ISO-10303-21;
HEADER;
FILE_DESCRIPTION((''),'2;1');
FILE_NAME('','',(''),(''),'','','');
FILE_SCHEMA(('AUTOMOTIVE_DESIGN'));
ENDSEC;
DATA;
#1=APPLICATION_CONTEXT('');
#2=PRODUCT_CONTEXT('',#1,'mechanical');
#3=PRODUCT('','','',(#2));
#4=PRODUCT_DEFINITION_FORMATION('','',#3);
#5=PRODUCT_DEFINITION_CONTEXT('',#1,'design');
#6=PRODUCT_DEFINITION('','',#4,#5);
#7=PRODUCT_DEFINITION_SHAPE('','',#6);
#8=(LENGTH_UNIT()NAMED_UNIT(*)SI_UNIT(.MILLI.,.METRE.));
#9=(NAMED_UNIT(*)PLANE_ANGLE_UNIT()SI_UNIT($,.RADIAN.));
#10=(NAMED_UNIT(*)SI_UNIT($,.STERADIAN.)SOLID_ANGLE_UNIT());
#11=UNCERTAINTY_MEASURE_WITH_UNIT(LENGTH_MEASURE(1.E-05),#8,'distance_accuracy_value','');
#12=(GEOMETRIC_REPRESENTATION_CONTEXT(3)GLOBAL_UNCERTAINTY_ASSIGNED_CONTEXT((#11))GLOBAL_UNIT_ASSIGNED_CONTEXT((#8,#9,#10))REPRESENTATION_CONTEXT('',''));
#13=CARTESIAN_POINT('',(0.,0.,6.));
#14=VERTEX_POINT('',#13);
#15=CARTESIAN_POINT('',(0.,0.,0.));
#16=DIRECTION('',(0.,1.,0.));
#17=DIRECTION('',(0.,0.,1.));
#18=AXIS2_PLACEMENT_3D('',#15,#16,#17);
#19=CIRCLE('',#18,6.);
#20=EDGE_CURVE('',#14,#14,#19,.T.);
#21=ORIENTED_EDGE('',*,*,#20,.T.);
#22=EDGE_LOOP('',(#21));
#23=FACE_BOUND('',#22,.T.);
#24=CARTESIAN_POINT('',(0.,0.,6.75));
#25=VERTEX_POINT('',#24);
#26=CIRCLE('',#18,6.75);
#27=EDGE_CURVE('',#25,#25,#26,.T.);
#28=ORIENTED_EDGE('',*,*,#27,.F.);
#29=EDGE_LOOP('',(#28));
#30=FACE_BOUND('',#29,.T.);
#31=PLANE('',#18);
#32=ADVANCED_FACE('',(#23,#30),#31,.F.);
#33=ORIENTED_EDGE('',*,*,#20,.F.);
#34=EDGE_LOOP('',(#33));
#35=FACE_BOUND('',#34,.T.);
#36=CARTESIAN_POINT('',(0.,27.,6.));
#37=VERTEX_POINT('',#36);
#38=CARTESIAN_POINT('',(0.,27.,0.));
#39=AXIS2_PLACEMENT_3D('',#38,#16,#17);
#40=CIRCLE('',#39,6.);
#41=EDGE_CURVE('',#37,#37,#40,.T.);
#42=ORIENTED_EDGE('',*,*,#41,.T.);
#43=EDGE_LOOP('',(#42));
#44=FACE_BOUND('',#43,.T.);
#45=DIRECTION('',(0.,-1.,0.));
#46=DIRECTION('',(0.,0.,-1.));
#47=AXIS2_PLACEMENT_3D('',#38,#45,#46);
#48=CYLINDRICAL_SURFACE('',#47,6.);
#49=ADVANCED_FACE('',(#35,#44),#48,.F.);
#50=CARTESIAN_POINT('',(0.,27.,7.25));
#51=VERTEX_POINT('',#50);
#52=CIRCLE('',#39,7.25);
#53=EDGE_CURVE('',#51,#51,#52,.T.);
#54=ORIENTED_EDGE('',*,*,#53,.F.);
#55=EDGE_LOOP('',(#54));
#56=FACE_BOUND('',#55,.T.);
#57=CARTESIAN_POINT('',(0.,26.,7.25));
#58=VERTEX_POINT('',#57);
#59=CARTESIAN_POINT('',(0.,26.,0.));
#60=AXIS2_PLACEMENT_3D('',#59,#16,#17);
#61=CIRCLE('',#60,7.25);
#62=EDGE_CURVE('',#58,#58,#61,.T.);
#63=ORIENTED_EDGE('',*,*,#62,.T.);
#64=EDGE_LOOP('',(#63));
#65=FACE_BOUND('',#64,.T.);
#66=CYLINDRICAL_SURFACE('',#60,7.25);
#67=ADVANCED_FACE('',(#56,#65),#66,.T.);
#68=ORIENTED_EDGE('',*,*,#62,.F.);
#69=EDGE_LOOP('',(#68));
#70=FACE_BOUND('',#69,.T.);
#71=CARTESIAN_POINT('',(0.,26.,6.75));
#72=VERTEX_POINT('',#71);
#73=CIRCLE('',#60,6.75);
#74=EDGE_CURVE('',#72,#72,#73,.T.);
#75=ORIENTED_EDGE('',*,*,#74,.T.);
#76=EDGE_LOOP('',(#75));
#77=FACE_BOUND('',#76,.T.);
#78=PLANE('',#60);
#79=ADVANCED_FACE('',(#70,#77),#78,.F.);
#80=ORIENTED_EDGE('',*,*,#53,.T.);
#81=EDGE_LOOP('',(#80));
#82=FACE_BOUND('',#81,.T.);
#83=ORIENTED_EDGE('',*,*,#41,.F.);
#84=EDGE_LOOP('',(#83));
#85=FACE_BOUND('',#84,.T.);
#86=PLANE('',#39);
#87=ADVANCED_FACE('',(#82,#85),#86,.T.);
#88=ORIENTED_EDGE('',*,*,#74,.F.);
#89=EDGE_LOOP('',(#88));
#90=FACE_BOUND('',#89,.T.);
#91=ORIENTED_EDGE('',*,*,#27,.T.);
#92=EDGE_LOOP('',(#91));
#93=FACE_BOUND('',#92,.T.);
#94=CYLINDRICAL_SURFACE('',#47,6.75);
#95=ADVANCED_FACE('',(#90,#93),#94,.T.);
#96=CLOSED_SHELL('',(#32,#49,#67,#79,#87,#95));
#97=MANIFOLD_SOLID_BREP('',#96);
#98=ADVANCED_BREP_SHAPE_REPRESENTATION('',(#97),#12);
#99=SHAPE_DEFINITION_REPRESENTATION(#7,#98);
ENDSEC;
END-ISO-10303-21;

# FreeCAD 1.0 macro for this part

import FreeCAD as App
import Part
import Sketcher

V = App.Vector
Q = App.Units.Quantity

doc = App.newDocument("Part")
body = doc.addObject("PartDesign::Body", "Body")

# Sketch on XZ plane
sketch1 = body.newObject("Sketcher::SketchObject", "Sketch")
sketch1.AttachmentSupport = (doc.getObject("XZ_Plane"), [""])
sketch1.MapMode = "FlatFace"
sketch1.addGeometry([
    Part.Circle(V(0, 0, 0), V(0, 0, 1), 7),
    Part.Circle(V(0, 0, 0), V(0, 0, 1), 6),
], False)
sketch1.addConstraint([
    Sketcher.Constraint("Coincident", 0, 3, -1, 1),
    Sketcher.Constraint("Coincident", 1, 3, -1, 1),
    Sketcher.Constraint("Diameter", 1, Q("12 mm")),
    Sketcher.Constraint("Diameter", 0, Q("13.5 mm")),
])
pad1 = body.newObject("PartDesign::Pad", "Pad")
pad1.Profile = sketch1
pad1.Length = 27
pad1.Reversed = True

# Sketch on XZ plane
sketch2 = body.newObject("Sketcher::SketchObject", "Sketch001")
sketch2.AttachmentSupport = (doc.getObject("XZ_Plane"), [""])
sketch2.MapMode = "FlatFace"
sketch2.AttachmentOffset = App.Placement(V(0, 0, -27), App.Rotation())
sketch2.addGeometry([
    Part.Circle(V(0, 0, 0), V(0, 0, 1), 7),
    Part.Circle(V(0, 0, 0), V(0, 0, 1), 7),
], False)
sketch2.addConstraint([
    Sketcher.Constraint("Coincident", 0, 3, -1, 1),
    Sketcher.Constraint("Coincident", 1, 3, -1, 1),
    Sketcher.Constraint("Diameter", 0, Q("14.5 mm")),
    Sketcher.Constraint("Diameter", 1, Q("13.5 mm")),
])
pad2 = body.newObject("PartDesign::Pad", "Pad001")
pad2.Profile = sketch2
pad2.Length = 1

doc.recompute()
